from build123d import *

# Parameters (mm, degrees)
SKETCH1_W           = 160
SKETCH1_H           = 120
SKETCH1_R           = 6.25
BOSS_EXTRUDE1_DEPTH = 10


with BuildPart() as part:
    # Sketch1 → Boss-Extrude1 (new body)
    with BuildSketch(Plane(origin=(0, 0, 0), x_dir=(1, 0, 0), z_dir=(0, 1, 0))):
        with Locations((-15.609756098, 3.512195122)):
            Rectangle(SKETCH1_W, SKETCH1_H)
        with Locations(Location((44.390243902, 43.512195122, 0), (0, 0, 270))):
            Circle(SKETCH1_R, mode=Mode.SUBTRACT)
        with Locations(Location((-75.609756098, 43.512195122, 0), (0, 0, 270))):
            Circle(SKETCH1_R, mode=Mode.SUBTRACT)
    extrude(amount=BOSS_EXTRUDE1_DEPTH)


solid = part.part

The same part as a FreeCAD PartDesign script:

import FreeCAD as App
import Part
import Sketcher

V = App.Vector


def add_polygon(sketch, points):
    """Adds a closed chain of lines whose ends are joined by coincident constraints."""
    first, n = sketch.GeometryCount, len(points)
    for a, b in zip(points, points[1:] + points[:1]):
        sketch.addGeometry(Part.LineSegment(App.Vector(*a, 0), App.Vector(*b, 0)), False)
    for i in range(n):
        sketch.addConstraint(Sketcher.Constraint("Coincident", first + i, 2, first + (i + 1) % n, 1))

doc = App.newDocument("Part")
body = doc.addObject("PartDesign::Body", "Body")

sketch1 = doc.addObject("Sketcher::SketchObject", "Sketch")
body.addObject(sketch1)
sketch1.AttachmentSupport = (doc.XZ_Plane, [""])
sketch1.MapMode = "FlatFace"
add_polygon(sketch1, [(-96, -64), (-96, 56), (64, 56), (64, -64)])
sketch1.addGeometry(Part.Circle(V(-76, -44, 0), V(0, 0, 1), 6), False)
sketch1.addGeometry(Part.Circle(V(44, -44, 0), V(0, 0, 1), 6), False)
sketch1.addConstraint([
    Sketcher.Constraint("Vertical", 0),
    Sketcher.Constraint("Horizontal", 1),
    Sketcher.Constraint("Vertical", 2),
    Sketcher.Constraint("Horizontal", 3),
    Sketcher.Constraint("Equal", 4, 5),
    Sketcher.Constraint("Horizontal", 4, 3, 5, 3),
    Sketcher.Constraint("Diameter", 4, 12.5),
    Sketcher.Constraint("DistanceX", 1, 1, 1, 2, 160.0),
    Sketcher.Constraint("DistanceY", 0, 1, 0, 2, 120.0),
    Sketcher.Constraint("DistanceX", 4, 3, 5, 3, 120.0),
    Sketcher.Constraint("DistanceX", 0, 2, 4, 3, 20.0),
    Sketcher.Constraint("DistanceY", 4, 3, 0, 2, 100.0),
    Sketcher.Constraint("DistanceX", 4, 3, -1, 1, 75.609756),
    Sketcher.Constraint("DistanceY", 4, 3, -1, 1, 43.512195),
])
pad1 = doc.addObject("PartDesign::Pad", "Pad")
body.addObject(pad1)
pad1.Profile = sketch1
pad1.Length = 10
pad1.Reversed = True

doc.recompute()
